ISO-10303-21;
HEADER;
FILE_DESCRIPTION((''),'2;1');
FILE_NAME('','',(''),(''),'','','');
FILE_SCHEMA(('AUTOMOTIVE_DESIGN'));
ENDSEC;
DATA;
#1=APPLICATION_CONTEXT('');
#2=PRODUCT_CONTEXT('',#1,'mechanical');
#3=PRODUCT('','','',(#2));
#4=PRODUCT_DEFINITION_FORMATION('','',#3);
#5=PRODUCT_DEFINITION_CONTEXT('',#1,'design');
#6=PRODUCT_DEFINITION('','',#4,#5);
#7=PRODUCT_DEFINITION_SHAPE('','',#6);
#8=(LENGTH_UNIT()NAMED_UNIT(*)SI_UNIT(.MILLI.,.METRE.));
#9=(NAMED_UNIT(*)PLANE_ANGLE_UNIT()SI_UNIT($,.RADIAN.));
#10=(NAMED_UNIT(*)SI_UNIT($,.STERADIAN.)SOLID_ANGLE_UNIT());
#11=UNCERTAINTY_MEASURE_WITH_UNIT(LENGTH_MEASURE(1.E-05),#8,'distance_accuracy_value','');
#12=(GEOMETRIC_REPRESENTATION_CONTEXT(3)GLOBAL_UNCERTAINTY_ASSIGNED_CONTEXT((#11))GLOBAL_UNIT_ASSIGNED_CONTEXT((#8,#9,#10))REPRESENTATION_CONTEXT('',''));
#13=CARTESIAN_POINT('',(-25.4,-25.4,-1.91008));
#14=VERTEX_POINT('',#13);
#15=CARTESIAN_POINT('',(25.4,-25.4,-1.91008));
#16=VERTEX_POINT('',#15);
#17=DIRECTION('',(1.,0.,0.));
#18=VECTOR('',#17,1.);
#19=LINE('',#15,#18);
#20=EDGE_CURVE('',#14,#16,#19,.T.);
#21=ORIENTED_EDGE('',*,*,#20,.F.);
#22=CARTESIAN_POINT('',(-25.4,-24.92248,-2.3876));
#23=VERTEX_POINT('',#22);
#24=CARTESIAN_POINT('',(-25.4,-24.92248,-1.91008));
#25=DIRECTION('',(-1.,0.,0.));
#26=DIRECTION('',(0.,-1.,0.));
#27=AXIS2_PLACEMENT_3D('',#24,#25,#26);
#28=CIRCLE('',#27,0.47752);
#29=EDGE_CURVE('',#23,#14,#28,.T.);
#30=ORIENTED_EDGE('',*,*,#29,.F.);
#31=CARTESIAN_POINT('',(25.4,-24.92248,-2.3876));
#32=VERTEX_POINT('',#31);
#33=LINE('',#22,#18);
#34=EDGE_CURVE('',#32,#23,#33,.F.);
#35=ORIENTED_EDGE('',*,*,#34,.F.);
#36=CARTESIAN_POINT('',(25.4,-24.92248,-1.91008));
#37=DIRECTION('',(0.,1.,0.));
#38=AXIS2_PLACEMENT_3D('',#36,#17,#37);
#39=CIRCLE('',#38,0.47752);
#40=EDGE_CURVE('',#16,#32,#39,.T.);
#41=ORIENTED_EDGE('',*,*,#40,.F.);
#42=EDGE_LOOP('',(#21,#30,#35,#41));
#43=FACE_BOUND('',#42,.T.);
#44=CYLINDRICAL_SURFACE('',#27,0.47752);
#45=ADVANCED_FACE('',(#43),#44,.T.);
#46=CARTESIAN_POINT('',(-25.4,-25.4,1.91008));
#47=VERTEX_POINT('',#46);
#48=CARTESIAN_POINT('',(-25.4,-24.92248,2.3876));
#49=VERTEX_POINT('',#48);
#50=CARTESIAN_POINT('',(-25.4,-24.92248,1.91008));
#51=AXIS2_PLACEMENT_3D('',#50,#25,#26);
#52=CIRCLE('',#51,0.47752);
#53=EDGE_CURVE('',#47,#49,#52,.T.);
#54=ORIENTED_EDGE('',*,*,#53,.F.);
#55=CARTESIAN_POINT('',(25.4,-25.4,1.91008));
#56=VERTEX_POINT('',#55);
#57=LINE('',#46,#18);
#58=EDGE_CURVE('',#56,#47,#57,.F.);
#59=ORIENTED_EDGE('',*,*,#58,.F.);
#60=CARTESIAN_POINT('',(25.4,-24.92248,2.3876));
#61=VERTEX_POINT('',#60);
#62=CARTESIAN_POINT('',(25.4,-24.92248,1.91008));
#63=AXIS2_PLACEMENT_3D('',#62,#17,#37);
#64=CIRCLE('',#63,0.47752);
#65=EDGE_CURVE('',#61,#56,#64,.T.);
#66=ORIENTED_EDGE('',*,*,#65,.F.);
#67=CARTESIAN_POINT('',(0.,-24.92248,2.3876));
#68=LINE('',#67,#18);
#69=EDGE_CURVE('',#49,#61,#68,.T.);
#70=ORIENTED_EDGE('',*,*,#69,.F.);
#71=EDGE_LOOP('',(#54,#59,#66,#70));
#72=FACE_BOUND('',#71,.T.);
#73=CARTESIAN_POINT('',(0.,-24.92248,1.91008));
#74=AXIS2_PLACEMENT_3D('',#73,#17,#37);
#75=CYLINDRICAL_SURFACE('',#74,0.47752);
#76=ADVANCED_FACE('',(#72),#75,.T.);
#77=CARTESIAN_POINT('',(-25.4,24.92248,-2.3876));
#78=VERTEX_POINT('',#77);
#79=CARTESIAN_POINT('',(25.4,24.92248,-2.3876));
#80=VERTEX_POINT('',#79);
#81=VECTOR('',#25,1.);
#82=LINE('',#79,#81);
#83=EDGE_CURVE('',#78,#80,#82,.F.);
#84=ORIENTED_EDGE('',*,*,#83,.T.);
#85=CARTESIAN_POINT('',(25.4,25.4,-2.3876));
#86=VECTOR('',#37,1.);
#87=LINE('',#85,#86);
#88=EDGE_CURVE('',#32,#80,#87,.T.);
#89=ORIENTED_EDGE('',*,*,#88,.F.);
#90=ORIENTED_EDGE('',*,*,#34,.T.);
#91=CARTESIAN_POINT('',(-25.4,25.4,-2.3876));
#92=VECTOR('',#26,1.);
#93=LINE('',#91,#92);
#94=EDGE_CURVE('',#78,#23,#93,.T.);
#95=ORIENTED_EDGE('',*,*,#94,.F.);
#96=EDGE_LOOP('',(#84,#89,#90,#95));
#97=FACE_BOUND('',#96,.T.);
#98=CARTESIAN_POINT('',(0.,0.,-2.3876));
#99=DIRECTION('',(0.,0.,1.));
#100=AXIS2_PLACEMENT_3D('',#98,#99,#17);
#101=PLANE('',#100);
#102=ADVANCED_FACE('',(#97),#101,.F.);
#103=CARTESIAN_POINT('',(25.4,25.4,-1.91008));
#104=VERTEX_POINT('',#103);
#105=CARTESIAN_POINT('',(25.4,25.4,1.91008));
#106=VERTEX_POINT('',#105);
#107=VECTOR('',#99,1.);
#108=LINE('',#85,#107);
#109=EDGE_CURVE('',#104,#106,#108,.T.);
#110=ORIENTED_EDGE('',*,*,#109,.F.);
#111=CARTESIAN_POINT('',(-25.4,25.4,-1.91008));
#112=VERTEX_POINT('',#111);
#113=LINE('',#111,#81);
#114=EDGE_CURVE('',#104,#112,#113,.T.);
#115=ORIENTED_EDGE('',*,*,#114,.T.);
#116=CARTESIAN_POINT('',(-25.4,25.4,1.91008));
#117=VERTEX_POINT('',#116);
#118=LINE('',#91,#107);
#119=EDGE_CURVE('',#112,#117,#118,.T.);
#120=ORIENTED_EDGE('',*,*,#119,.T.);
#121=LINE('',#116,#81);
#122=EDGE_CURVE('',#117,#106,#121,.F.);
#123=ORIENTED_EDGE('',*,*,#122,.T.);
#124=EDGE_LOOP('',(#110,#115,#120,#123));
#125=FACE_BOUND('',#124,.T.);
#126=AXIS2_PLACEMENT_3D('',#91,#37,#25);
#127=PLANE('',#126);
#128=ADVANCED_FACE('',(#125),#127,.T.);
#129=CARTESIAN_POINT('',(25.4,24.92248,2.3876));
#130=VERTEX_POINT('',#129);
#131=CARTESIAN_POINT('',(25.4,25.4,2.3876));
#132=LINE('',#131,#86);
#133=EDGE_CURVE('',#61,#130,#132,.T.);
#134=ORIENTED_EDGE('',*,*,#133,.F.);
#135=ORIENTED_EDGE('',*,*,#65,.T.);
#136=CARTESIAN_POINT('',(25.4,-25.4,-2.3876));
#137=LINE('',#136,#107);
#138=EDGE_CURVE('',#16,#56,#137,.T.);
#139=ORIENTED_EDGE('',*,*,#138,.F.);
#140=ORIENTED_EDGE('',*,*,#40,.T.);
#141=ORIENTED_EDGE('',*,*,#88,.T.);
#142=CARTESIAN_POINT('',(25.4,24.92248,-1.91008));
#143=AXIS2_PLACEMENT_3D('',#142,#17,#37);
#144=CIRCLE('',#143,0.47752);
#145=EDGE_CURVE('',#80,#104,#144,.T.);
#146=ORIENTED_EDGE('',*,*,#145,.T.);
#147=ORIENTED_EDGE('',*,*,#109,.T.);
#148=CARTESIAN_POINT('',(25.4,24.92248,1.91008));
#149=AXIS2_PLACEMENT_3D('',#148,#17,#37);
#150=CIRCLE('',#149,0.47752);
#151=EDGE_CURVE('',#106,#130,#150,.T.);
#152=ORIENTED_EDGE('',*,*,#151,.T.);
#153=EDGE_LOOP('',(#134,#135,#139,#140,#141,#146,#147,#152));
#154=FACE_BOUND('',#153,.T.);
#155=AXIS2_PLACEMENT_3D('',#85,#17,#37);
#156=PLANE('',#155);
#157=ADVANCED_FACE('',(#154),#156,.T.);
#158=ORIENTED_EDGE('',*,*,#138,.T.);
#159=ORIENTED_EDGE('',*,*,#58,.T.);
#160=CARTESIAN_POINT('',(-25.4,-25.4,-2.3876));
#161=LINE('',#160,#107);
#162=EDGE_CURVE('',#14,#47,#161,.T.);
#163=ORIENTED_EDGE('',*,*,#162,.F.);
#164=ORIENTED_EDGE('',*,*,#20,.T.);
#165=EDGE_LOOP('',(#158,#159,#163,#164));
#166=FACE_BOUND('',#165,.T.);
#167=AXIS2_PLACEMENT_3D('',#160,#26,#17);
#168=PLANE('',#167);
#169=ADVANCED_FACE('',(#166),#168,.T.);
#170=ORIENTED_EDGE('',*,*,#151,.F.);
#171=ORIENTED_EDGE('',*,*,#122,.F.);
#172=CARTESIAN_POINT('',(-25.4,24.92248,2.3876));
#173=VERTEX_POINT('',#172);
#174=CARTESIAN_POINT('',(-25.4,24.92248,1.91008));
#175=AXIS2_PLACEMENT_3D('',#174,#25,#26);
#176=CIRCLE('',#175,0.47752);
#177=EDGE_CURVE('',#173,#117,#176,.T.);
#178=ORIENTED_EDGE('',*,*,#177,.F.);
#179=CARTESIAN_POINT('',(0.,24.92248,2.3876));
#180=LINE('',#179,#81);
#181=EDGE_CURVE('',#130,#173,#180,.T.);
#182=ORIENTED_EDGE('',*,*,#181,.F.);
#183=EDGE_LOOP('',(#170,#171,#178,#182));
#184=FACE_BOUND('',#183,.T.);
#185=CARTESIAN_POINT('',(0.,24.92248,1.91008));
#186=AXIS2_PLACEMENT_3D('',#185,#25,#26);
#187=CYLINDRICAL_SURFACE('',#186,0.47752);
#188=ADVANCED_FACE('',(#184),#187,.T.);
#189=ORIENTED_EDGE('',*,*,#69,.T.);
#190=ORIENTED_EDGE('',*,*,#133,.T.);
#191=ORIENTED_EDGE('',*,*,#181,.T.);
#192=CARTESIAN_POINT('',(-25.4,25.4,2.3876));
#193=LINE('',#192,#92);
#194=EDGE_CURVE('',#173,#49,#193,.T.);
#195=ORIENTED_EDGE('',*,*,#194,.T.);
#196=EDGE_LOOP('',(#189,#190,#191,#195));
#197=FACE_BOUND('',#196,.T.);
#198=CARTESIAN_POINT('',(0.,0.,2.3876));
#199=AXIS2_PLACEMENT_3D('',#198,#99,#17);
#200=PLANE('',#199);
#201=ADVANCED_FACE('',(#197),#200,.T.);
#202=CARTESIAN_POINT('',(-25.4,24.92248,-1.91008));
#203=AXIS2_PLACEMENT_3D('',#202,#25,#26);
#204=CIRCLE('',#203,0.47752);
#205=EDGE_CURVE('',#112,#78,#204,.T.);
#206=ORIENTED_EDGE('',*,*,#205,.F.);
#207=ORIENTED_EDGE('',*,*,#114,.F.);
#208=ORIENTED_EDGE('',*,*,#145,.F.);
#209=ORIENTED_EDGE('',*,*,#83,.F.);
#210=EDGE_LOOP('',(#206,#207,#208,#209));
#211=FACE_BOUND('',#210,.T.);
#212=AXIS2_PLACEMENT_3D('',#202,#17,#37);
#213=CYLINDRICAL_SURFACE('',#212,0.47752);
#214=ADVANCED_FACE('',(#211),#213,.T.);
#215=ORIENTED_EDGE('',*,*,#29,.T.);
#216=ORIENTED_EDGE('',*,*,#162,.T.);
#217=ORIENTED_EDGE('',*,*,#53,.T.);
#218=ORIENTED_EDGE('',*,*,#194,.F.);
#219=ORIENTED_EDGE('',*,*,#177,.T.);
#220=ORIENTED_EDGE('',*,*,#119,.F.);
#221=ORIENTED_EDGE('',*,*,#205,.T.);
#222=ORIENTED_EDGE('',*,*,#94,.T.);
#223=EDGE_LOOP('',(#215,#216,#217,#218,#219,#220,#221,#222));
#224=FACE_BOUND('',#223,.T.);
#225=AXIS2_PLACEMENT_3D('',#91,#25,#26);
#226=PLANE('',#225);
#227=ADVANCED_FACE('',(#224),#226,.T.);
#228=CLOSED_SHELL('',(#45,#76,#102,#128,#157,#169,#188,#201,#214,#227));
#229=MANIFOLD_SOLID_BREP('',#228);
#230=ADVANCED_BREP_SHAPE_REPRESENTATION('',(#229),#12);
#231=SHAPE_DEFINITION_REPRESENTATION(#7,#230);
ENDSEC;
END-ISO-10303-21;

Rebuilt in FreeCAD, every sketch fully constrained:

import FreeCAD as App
import Part
import Sketcher
from FreeCAD import Vector
Q = App.Units.Quantity


def edges_at(feature, points):
    """Names of the edges that pass closest to the given points."""
    edges = feature.Shape.Edges
    near = lambda p: min(range(len(edges)), key=lambda i: edges[i].distToShape(Part.Vertex(*p))[0])
    return sorted({f"Edge{near(p) + 1}" for p in points})


def add_polygon(sketch, points):
    """Adds a closed chain of lines whose ends are joined by coincident constraints."""
    first, n = sketch.GeometryCount, len(points)
    for a, b in zip(points, points[1:] + points[:1]):
        sketch.addGeometry(Part.LineSegment(App.Vector(*a, 0), App.Vector(*b, 0)), False)
    for i in range(n):
        sketch.addConstraint(Sketcher.Constraint("Coincident", first + i, 2, first + (i + 1) % n, 1))

doc = App.newDocument("Part")
body = doc.addObject("PartDesign::Body", "Body")

sketch1 = doc.addObject("Sketcher::SketchObject", "Sketch")
body.addObject(sketch1)
sketch1.AttachmentSupport = (doc.XY_Plane, [""])
sketch1.MapMode = "FlatFace"
add_polygon(sketch1, [(-25, 25), (-25, -25), (25, -25), (25, 25)])
sketch1.addConstraint(Sketcher.Constraint("Vertical", 0))
sketch1.addConstraint(Sketcher.Constraint("Horizontal", 1))
sketch1.addConstraint(Sketcher.Constraint("Vertical", 2))
sketch1.addConstraint(Sketcher.Constraint("Horizontal", 3))
sketch1.addConstraint(Sketcher.Constraint("Symmetric", 0, 2, 2, 2, -1, 1))
sketch1.addConstraint(Sketcher.Constraint("Equal", 3, 0))
sketch1.addConstraint(Sketcher.Constraint("DistanceX", 1, 1, 1, 2, Q("2 in")))
pad1 = doc.addObject("PartDesign::Pad", "Pad")
body.addObject(pad1)
pad1.Profile = sketch1
pad1.Type = "TwoLengths"
pad1.Length = Q("0.094 in")
pad1.Length2 = Q("0.094 in")
doc.recompute()

fillet = doc.addObject("PartDesign::Fillet", "Fillet")
body.addObject(fillet)
fillet.Base = (pad1, edges_at(pad1, [
    (0, -25.4, 2.388),
    (0, 25.4, -2.388),
    (0, 25.4, 2.388),
    (0, -25.4, -2.388),
]))
fillet.Radius = Q("0.0188 in")

doc.recompute()
